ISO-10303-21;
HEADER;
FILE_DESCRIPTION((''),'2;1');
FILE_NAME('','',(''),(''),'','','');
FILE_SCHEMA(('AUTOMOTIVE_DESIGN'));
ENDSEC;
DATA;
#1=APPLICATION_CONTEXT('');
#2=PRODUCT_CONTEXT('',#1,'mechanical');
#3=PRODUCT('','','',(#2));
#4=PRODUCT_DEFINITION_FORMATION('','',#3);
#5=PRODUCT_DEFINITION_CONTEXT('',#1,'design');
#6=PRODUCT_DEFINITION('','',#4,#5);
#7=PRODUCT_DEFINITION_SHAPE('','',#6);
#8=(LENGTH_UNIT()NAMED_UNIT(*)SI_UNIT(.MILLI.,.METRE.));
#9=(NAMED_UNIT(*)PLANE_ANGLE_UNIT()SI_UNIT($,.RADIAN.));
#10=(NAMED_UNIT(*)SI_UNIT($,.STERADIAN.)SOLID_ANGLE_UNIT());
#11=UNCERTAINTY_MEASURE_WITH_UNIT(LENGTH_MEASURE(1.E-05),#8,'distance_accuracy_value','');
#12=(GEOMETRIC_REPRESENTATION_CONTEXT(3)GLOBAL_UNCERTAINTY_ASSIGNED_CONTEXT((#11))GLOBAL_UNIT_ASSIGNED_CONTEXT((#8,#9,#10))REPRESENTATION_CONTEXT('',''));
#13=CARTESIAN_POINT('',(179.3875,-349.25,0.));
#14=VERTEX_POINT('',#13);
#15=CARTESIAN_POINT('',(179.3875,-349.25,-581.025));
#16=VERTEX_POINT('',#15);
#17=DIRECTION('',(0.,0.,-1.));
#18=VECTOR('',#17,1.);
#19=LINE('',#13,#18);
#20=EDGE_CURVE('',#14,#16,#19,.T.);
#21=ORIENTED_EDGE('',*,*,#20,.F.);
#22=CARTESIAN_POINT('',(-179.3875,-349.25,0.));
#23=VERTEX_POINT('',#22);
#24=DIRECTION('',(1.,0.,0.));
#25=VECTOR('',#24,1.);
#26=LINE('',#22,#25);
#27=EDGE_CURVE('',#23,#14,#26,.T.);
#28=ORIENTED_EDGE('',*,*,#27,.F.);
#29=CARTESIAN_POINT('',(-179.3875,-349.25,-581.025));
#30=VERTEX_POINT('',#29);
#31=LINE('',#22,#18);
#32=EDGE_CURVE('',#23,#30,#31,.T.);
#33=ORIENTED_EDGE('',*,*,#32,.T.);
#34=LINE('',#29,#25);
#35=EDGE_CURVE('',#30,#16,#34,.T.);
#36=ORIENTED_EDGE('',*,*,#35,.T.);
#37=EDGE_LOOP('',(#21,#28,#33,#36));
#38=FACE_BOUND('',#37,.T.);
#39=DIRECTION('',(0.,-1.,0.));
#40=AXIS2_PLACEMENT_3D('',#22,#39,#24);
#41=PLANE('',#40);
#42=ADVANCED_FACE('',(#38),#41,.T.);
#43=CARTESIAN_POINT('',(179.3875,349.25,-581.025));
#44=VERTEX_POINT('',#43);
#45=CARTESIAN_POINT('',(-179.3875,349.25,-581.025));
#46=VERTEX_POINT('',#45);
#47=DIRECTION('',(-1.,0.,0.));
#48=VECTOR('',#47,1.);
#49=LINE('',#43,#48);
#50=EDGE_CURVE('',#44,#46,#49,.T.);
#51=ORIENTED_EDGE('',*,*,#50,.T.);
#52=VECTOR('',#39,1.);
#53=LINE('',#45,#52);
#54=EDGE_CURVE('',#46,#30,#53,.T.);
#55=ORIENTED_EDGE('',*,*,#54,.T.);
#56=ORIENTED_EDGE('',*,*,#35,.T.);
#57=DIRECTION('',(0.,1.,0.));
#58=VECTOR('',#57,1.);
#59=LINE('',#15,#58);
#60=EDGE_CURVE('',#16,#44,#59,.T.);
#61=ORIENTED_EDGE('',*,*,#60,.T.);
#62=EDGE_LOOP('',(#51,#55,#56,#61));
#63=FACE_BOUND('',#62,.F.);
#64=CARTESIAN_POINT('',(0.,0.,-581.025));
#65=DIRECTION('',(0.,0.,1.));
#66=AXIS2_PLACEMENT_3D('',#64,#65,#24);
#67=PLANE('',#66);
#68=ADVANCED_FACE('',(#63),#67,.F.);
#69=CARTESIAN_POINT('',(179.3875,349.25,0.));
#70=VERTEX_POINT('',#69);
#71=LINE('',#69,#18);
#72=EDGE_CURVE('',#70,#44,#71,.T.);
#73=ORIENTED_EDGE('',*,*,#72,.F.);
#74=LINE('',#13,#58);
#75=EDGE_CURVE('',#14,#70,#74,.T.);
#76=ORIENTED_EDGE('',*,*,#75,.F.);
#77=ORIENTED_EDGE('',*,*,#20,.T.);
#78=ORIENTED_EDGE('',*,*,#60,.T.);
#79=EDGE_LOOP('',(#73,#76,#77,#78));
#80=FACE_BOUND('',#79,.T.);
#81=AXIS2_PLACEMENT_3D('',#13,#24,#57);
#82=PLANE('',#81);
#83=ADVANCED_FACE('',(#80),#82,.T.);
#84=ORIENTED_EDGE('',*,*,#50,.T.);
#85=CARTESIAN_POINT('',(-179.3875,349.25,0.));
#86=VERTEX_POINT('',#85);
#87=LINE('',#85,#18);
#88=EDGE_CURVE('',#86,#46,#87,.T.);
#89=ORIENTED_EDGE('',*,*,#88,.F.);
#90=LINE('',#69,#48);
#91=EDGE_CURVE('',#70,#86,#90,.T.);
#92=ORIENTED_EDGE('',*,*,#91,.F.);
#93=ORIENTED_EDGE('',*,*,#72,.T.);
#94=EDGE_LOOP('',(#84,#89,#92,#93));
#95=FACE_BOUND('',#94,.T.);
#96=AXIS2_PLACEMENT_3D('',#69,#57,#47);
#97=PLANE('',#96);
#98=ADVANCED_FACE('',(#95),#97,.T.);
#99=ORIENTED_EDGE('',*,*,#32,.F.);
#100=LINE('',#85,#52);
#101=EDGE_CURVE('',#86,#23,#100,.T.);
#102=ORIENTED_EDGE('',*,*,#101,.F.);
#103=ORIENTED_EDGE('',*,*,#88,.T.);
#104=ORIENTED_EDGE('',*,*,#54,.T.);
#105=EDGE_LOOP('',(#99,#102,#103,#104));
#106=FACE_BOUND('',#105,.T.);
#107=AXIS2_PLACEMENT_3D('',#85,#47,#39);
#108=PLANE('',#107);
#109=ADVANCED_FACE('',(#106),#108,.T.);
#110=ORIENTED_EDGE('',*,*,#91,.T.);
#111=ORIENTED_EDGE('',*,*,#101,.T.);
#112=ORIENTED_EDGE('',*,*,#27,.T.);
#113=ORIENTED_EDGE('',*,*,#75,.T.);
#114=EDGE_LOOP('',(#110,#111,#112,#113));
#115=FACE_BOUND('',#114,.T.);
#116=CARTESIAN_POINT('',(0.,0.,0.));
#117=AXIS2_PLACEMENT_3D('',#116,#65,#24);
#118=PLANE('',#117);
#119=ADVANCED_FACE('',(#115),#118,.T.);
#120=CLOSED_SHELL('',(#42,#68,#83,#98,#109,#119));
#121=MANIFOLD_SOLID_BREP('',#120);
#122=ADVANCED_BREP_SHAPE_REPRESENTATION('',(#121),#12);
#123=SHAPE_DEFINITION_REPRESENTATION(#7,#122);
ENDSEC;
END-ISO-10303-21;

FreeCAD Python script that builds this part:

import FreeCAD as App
import Part
import Sketcher
from FreeCAD import Vector
Q = App.Units.Quantity


def add_polygon(sketch, points):
    """Adds a closed chain of lines whose ends are joined by coincident constraints."""
    first, n = sketch.GeometryCount, len(points)
    for a, b in zip(points, points[1:] + points[:1]):
        sketch.addGeometry(Part.LineSegment(App.Vector(*a, 0), App.Vector(*b, 0)), False)
    for i in range(n):
        sketch.addConstraint(Sketcher.Constraint("Coincident", first + i, 2, first + (i + 1) % n, 1))

doc = App.newDocument("Part")
params = doc.addObject("Spreadsheet::Sheet", "Params")
for row, (alias, value) in enumerate([
    ("sketch1_height", "27.5 in"),
    ("sketch1_width", "14.125 in"),
    ("pad1_length", "22.875 in"),
], start=1):
    params.set(f"A{row}", alias)
    params.set(f"B{row}", "=" + value)
    params.setAlias(f"B{row}", alias)

body = doc.addObject("PartDesign::Body", "Body")

# Sketch on XY plane
sketch1 = body.newObject("Sketcher::SketchObject", "Sketch")
sketch1.AttachmentSupport = (doc.getObject("XY_Plane"), [""])
sketch1.MapMode = "FlatFace"
add_polygon(sketch1, [(-179, 349), (-179, -349), (179, -349), (179, 349)])  # lines 0-3
sketch1.addConstraint([
    Sketcher.Constraint("Vertical", 0),
    Sketcher.Constraint("Horizontal", 1),
    Sketcher.Constraint("Vertical", 2),
    Sketcher.Constraint("Horizontal", 3),
    Sketcher.Constraint("Symmetric", 0, 2, 2, 2, -1, 1),
    Sketcher.Constraint("DistanceY", 0, 2, 0, 1, Q("27.5 in")),
    Sketcher.Constraint("DistanceX", 1, 1, 1, 2, Q("14.125 in")),
])
sketch1.setExpression("Constraints[9]", "Params.sketch1_height")
sketch1.setExpression("Constraints[10]", "Params.sketch1_width")
pad1 = body.newObject("PartDesign::Pad", "Pad")
pad1.Profile = sketch1
pad1.setExpression("Length", "Params.pad1_length")
pad1.Reversed = True

doc.recompute()
